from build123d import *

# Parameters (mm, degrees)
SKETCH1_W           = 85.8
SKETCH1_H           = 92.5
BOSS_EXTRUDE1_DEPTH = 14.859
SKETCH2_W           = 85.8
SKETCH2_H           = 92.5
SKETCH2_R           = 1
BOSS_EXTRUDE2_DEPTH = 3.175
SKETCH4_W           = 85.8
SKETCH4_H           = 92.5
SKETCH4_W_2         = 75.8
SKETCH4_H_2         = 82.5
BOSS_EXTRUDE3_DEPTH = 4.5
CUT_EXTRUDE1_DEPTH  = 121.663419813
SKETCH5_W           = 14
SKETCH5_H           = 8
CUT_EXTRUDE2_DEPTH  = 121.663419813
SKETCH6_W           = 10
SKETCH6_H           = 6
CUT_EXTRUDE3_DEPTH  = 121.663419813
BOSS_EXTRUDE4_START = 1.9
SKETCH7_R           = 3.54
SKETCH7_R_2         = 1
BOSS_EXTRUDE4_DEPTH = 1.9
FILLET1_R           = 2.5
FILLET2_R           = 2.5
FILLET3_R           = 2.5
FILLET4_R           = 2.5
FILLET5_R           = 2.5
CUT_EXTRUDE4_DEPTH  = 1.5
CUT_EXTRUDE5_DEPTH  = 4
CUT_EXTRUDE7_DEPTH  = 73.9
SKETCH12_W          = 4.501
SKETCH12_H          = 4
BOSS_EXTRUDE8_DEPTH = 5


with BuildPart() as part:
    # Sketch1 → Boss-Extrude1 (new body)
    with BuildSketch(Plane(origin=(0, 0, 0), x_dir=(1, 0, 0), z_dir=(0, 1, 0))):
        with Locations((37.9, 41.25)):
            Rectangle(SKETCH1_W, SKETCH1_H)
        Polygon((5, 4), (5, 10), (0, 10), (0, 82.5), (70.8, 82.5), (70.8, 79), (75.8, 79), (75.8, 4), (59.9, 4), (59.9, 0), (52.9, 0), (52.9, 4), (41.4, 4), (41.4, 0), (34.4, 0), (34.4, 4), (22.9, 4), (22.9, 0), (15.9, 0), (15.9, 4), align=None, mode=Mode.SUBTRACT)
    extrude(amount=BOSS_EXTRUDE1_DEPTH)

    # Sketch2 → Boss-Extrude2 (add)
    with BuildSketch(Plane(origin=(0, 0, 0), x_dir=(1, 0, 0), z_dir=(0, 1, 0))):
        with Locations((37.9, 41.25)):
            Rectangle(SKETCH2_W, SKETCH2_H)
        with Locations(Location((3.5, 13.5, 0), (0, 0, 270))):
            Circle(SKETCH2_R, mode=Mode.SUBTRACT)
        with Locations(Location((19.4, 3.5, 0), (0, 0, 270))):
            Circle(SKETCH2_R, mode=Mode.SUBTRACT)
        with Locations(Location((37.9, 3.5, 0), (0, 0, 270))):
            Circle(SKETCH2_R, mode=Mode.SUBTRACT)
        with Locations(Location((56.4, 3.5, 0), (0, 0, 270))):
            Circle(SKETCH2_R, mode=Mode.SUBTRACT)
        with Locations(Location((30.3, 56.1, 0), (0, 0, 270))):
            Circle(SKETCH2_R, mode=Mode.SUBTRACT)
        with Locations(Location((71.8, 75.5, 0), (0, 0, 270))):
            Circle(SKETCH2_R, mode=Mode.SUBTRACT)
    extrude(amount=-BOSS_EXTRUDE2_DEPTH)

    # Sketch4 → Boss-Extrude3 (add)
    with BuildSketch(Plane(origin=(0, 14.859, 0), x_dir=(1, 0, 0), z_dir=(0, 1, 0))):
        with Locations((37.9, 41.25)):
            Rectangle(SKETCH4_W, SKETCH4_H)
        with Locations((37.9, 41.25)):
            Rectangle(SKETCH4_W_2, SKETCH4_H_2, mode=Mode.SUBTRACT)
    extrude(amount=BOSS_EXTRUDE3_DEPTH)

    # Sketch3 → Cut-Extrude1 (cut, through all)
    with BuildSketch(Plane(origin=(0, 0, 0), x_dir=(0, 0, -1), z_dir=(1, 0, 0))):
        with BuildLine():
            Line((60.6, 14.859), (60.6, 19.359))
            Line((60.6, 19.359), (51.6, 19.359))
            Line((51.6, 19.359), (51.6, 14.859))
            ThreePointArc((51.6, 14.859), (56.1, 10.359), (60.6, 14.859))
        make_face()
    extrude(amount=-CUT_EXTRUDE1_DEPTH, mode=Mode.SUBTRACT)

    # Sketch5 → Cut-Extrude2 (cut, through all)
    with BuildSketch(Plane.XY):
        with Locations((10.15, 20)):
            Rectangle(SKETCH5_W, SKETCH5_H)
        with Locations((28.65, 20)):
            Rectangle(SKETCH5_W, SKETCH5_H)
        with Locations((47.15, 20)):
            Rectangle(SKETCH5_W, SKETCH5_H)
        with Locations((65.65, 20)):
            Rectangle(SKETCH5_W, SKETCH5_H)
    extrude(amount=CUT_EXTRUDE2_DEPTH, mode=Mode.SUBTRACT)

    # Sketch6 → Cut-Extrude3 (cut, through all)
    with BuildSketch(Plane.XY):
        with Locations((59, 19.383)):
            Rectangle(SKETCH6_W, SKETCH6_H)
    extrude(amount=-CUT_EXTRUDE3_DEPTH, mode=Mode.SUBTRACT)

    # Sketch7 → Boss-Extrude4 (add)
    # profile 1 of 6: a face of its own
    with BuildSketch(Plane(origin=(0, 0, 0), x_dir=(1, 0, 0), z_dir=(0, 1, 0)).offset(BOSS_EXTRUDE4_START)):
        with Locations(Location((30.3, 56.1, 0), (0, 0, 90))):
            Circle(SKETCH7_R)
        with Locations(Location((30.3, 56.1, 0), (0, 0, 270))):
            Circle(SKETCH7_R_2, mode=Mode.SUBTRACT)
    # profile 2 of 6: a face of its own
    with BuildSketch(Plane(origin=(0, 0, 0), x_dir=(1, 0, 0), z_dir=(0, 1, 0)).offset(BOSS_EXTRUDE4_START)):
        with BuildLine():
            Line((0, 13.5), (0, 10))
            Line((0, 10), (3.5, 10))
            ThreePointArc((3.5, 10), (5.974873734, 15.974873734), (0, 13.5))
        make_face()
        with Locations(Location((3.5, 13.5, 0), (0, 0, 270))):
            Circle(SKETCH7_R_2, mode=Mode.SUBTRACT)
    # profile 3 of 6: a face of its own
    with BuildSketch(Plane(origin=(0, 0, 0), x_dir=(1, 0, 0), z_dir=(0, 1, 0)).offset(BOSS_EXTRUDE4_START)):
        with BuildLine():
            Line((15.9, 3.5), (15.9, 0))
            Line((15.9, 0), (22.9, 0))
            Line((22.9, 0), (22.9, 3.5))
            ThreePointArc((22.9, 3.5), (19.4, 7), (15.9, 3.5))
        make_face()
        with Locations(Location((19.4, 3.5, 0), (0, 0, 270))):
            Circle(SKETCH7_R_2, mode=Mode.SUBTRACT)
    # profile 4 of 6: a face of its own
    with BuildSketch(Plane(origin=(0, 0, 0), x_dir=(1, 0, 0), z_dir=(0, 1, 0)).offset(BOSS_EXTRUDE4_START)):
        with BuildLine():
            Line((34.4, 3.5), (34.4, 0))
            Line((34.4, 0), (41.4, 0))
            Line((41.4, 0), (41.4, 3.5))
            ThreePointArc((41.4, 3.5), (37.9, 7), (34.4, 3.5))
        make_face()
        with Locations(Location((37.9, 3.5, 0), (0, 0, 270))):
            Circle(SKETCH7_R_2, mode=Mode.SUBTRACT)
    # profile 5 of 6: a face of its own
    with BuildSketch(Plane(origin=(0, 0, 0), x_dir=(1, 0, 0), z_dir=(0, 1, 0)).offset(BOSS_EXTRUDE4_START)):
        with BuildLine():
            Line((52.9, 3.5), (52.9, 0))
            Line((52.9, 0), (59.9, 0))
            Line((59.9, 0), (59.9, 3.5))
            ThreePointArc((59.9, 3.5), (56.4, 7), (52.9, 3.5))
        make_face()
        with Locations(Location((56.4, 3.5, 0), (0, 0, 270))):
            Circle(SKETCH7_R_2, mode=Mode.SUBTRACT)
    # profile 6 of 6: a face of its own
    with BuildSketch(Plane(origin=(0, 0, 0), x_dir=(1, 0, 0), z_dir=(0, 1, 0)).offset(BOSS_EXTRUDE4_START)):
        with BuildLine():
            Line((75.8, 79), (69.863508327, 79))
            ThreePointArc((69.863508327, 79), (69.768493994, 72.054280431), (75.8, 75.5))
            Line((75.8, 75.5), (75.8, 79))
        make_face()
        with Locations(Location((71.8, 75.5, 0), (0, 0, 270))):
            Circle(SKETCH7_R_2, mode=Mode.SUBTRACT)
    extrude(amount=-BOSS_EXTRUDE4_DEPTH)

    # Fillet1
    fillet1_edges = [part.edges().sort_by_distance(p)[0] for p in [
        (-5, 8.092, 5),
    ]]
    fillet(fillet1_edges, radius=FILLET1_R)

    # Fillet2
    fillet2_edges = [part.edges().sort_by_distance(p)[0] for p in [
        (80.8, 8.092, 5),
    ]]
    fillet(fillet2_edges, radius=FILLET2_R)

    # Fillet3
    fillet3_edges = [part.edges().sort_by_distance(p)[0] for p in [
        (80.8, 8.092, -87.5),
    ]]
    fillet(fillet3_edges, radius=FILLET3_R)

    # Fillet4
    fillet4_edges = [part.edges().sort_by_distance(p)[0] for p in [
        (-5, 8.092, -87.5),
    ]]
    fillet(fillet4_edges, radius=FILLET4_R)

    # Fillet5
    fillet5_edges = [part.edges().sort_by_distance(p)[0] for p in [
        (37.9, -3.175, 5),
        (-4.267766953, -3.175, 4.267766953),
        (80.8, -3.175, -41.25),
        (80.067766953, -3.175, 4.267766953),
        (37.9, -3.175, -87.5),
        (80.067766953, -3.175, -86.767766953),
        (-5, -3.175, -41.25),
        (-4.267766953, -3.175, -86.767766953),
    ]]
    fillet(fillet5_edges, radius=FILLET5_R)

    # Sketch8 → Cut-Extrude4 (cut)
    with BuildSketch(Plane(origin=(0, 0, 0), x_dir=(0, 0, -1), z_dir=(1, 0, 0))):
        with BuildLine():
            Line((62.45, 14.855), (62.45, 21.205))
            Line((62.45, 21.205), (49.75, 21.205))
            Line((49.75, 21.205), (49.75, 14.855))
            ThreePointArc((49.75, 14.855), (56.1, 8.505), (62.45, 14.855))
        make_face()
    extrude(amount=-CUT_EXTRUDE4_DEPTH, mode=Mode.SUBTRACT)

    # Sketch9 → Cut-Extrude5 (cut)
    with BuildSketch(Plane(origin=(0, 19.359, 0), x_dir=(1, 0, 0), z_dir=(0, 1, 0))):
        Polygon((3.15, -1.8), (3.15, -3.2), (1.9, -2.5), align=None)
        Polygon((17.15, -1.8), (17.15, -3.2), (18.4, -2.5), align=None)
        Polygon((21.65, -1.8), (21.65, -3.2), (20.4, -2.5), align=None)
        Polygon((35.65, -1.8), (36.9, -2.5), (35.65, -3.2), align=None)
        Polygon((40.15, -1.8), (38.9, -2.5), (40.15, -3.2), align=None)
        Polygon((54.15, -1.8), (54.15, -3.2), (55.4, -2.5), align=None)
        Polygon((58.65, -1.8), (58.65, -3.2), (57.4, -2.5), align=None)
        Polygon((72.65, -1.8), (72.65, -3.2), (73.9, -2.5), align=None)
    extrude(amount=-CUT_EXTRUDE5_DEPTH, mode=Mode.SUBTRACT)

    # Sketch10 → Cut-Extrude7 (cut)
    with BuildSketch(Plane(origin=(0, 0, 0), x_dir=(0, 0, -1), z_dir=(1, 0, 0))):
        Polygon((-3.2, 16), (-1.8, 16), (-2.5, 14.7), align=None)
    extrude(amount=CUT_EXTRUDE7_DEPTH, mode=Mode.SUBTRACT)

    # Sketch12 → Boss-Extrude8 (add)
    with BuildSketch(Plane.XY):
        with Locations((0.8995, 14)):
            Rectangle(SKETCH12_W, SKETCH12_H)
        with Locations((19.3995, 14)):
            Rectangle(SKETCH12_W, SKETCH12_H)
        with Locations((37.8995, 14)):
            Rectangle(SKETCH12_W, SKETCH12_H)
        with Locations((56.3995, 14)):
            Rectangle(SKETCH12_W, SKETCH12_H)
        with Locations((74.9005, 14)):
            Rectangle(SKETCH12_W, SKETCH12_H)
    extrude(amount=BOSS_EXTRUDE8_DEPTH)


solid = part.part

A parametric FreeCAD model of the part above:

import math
import FreeCAD as App
import Part
import Sketcher
from FreeCAD import Vector


def edges_at(feature, points):
    """Names of the edges that pass closest to the given points."""
    edges = feature.Shape.Edges
    near = lambda p: min(range(len(edges)), key=lambda i: edges[i].distToShape(Part.Vertex(*p))[0])
    return sorted({f"Edge{near(p) + 1}" for p in points})

doc = App.newDocument("Part")
params = doc.addObject("Spreadsheet::Sheet", "Params")
for row, (alias, value) in enumerate([
    ("sketch1_width", "5 mm"),
    ("sketch1_width2", "7 mm"),
    ("sketch1_height", "6 mm"),
    ("sketch1_height2", "75 mm"),
    ("sketch1_height3", "4 mm"),
    ("pad1_length", "14.859 mm"),
    ("sketch2_diameter", "2 mm"),
    ("sketch2_width", "85.8 mm"),
    ("sketch2_height", "92.5 mm"),
    ("pad2_length", "3.175 mm"),
    ("sketch3_width", "85.8 mm"),
    ("sketch3_width2", "75.8 mm"),
    ("sketch3_height", "92.5 mm"),
    ("sketch3_height2", "82.5 mm"),
    ("pad3_length", "4.5 mm"),
    ("sketch4_radius", "4.5 mm"),
    ("sketch4_width", "4.5 mm"),
    ("sketch5_width", "14 mm"),
    ("sketch5_height", "8 mm"),
    ("sketch6_width", "10 mm"),
    ("sketch6_height", "6 mm"),
    ("sketch7_diameter", "2 mm"),
    ("sketch7_radius", "4 mm"),
    ("sketch7_radius2", "3.5 mm"),
    ("sketch7_diameter2", "7.08 mm"),
    ("pad4_length", "1.9 mm"),
    ("fillet_radius", "2.5 mm"),
    ("fillet2_radius", "2.5 mm"),
    ("fillet3_radius", "2.5 mm"),
    ("fillet4_radius", "2.5 mm"),
    ("fillet5_radius", "2.5 mm"),
    ("sketch8_radius", "6.35 mm"),
    ("sketch8_width", "6.35 mm"),
    ("pocket4_length", "1.5 mm"),
    ("sketch9_height", "1.4 mm"),
    ("pocket5_length", "4 mm"),
    ("sketch10_height", "1.4 mm"),
    ("pocket6_length", "73.9 mm"),
    ("sketch11_height", "4 mm"),
    ("pad5_length", "5 mm"),
], start=1):
    params.set(f"A{row}", alias)
    params.set(f"B{row}", "=" + value)
    params.setAlias(f"B{row}", alias)

body = doc.addObject("PartDesign::Body", "Body")

# Sketch on XZ plane
sketch1 = body.newObject("Sketcher::SketchObject", "Sketch")
sketch1.AttachmentSupport = (doc.getObject("XZ_Plane"), [""])
sketch1.MapMode = "FlatFace"
sketch1.addGeometry([
    Part.LineSegment(Vector(-5, -87.5, 0), Vector(-5, 5, 0)),  # 0
    Part.LineSegment(Vector(-5, 5, 0), Vector(80.8, 5, 0)),  # 1
    Part.LineSegment(Vector(80.8, 5, 0), Vector(80.8, -87.5, 0)),  # 2
    Part.LineSegment(Vector(80.8, -87.5, 0), Vector(-5, -87.5, 0)),  # 3
    Part.LineSegment(Vector(15.9, -4, 0), Vector(5, -4, 0)),  # 4
    Part.LineSegment(Vector(5, -4, 0), Vector(5, -10, 0)),  # 5
    Part.LineSegment(Vector(5, -10, 0), Vector(0, -10, 0)),  # 6
    Part.LineSegment(Vector(0, -10, 0), Vector(0, -82.5, 0)),  # 7
    Part.LineSegment(Vector(0, -82.5, 0), Vector(70.8, -82.5, 0)),  # 8
    Part.LineSegment(Vector(70.8, -82.5, 0), Vector(70.8, -79, 0)),  # 9
    Part.LineSegment(Vector(70.8, -79, 0), Vector(75.8, -79, 0)),  # 10
    Part.LineSegment(Vector(75.8, -79, 0), Vector(75.8, -4, 0)),  # 11
    Part.LineSegment(Vector(75.8, -4, 0), Vector(59.9, -4, 0)),  # 12
    Part.LineSegment(Vector(59.9, -4, 0), Vector(59.9, 0, 0)),  # 13
    Part.LineSegment(Vector(59.9, 0, 0), Vector(52.9, 0, 0)),  # 14
    Part.LineSegment(Vector(52.9, 0, 0), Vector(52.9, -4, 0)),  # 15
    Part.LineSegment(Vector(52.9, -4, 0), Vector(41.4, -4, 0)),  # 16
    Part.LineSegment(Vector(41.4, -4, 0), Vector(41.4, 0, 0)),  # 17
    Part.LineSegment(Vector(41.4, 0, 0), Vector(34.4, 0, 0)),  # 18
    Part.LineSegment(Vector(34.4, 0, 0), Vector(34.4, -4, 0)),  # 19
    Part.LineSegment(Vector(34.4, -4, 0), Vector(22.9, -4, 0)),  # 20
    Part.LineSegment(Vector(22.9, -4, 0), Vector(22.9, 0, 0)),  # 21
    Part.LineSegment(Vector(22.9, 0, 0), Vector(15.9, 0, 0)),  # 22
    Part.LineSegment(Vector(15.9, 0, 0), Vector(15.9, -4, 0)),  # 23
], False)
sketch1.addConstraint([
    Sketcher.Constraint("Coincident", 0, 2, 1, 1),
    Sketcher.Constraint("Coincident", 1, 2, 2, 1),
    Sketcher.Constraint("Coincident", 2, 2, 3, 1),
    Sketcher.Constraint("Coincident", 3, 2, 0, 1),
    Sketcher.Constraint("Coincident", 4, 2, 5, 1),
    Sketcher.Constraint("Coincident", 5, 2, 6, 1),
    Sketcher.Constraint("Coincident", 6, 2, 7, 1),
    Sketcher.Constraint("Coincident", 7, 2, 8, 1),
    Sketcher.Constraint("Coincident", 8, 2, 9, 1),
    Sketcher.Constraint("Coincident", 9, 2, 10, 1),
    Sketcher.Constraint("Coincident", 10, 2, 11, 1),
    Sketcher.Constraint("Coincident", 11, 2, 12, 1),
    Sketcher.Constraint("Coincident", 12, 2, 13, 1),
    Sketcher.Constraint("Coincident", 13, 2, 14, 1),
    Sketcher.Constraint("Coincident", 14, 2, 15, 1),
    Sketcher.Constraint("Coincident", 15, 2, 16, 1),
    Sketcher.Constraint("Coincident", 16, 2, 17, 1),
    Sketcher.Constraint("Coincident", 17, 2, 18, 1),
    Sketcher.Constraint("Coincident", 18, 2, 19, 1),
    Sketcher.Constraint("Coincident", 19, 2, 20, 1),
    Sketcher.Constraint("Coincident", 20, 2, 21, 1),
    Sketcher.Constraint("Coincident", 21, 2, 22, 1),
    Sketcher.Constraint("Coincident", 22, 2, 23, 1),
    Sketcher.Constraint("Coincident", 23, 2, 4, 1),
    Sketcher.Constraint("Vertical", 0),
    Sketcher.Constraint("Horizontal", 1),
    Sketcher.Constraint("Vertical", 2),
    Sketcher.Constraint("Horizontal", 3),
    Sketcher.Constraint("Horizontal", 4),
    Sketcher.Constraint("Vertical", 5),
    Sketcher.Constraint("Horizontal", 6),
    Sketcher.Constraint("Vertical", 7),
    Sketcher.Constraint("Horizontal", 8),
    Sketcher.Constraint("Vertical", 9),
    Sketcher.Constraint("Horizontal", 10),
    Sketcher.Constraint("Vertical", 11),
    Sketcher.Constraint("Horizontal", 12),
    Sketcher.Constraint("Vertical", 13),
    Sketcher.Constraint("Horizontal", 14),
    Sketcher.Constraint("Vertical", 15),
    Sketcher.Constraint("Horizontal", 16),
    Sketcher.Constraint("Vertical", 17),
    Sketcher.Constraint("Horizontal", 18),
    Sketcher.Constraint("Vertical", 19),
    Sketcher.Constraint("Horizontal", 20),
    Sketcher.Constraint("Vertical", 21),
    Sketcher.Constraint("Horizontal", 22),
    Sketcher.Constraint("Vertical", 23),
    Sketcher.Constraint("PointOnObject", 6, 2, -2),
    Sketcher.Constraint("PointOnObject", 13, 2, -1),
    Sketcher.Constraint("PointOnObject", 17, 2, -1),
    Sketcher.Constraint("PointOnObject", 21, 2, -1),
    Sketcher.Constraint("Horizontal", 4, 2, 11, 2),
    Sketcher.Constraint("Horizontal", 12, 2, 15, 2),
    Sketcher.Constraint("Horizontal", 16, 2, 19, 2),
    Sketcher.Constraint("Equal", 6, 10),
    Sketcher.Constraint("Equal", 14, 18),
    Sketcher.Constraint("Equal", 16, 20),
    Sketcher.Constraint("Equal", 18, 22),
    Sketcher.Constraint("DistanceX", 6, 2, 6, 1, 5.0),
    Sketcher.Constraint("DistanceX", 14, 2, 14, 1, 7.0),
    Sketcher.Constraint("DistanceY", 5, 2, 5, 1, 6.0),
    Sketcher.Constraint("DistanceY", 11, 1, 11, 2, 75.0),
    Sketcher.Constraint("DistanceY", 13, 1, 13, 2, 4.0),
    Sketcher.Constraint("DistanceX", 1, 1, 1, 2, 85.8),
    Sketcher.Constraint("DistanceX", 4, 2, 4, 1, 10.9),
    Sketcher.Constraint("DistanceX", 8, 1, 8, 2, 70.8),
    Sketcher.Constraint("DistanceX", 12, 2, 12, 1, 15.9),
    Sketcher.Constraint("DistanceY", 0, 1, 0, 2, 92.5),
    Sketcher.Constraint("DistanceY", 7, 2, 7, 1, 72.5),
    Sketcher.Constraint("DistanceX", 0, 2, -1, 1, 5.0),
    Sketcher.Constraint("DistanceY", -1, 1, 0, 2, 5.0),
])
sketch1.setExpression("Constraints[59]", "Params.sketch1_width")
sketch1.setExpression("Constraints[60]", "Params.sketch1_width2")
sketch1.setExpression("Constraints[61]", "Params.sketch1_height")
sketch1.setExpression("Constraints[62]", "Params.sketch1_height2")
sketch1.setExpression("Constraints[63]", "Params.sketch1_height3")
pad1 = body.newObject("PartDesign::Pad", "Pad")
pad1.Profile = sketch1
pad1.setExpression("Length", "Params.pad1_length")
pad1.Reversed = True

# Sketch on XZ plane
sketch2 = body.newObject("Sketcher::SketchObject", "Sketch001")
sketch2.AttachmentSupport = (doc.getObject("XZ_Plane"), [""])
sketch2.MapMode = "FlatFace"
sketch2.addGeometry([
    Part.LineSegment(Vector(-5, -87.5, 0), Vector(-5, 5, 0)),  # 0
    Part.LineSegment(Vector(-5, 5, 0), Vector(80.8, 5, 0)),  # 1
    Part.LineSegment(Vector(80.8, 5, 0), Vector(80.8, -87.5, 0)),  # 2
    Part.LineSegment(Vector(80.8, -87.5, 0), Vector(-5, -87.5, 0)),  # 3
    Part.Circle(Vector(19.4, -3.5, 0), Vector(0, 0, 1), 1),  # 4
    Part.Circle(Vector(3.5, -13.5, 0), Vector(0, 0, 1), 1),  # 5
    Part.Circle(Vector(37.9, -3.5, 0), Vector(0, 0, 1), 1),  # 6
    Part.Circle(Vector(56.4, -3.5, 0), Vector(0, 0, 1), 1),  # 7
    Part.Circle(Vector(30.3, -56.1, 0), Vector(0, 0, 1), 1),  # 8
    Part.Circle(Vector(71.8, -75.5, 0), Vector(0, 0, 1), 1),  # 9
], False)
sketch2.addConstraint([
    Sketcher.Constraint("Coincident", 0, 2, 1, 1),
    Sketcher.Constraint("Coincident", 1, 2, 2, 1),
    Sketcher.Constraint("Coincident", 2, 2, 3, 1),
    Sketcher.Constraint("Coincident", 3, 2, 0, 1),
    Sketcher.Constraint("Vertical", 0),
    Sketcher.Constraint("Horizontal", 1),
    Sketcher.Constraint("Vertical", 2),
    Sketcher.Constraint("Horizontal", 3),
    Sketcher.Constraint("Equal", 4, 5),
    Sketcher.Constraint("Equal", 5, 6),
    Sketcher.Constraint("Equal", 6, 7),
    Sketcher.Constraint("Equal", 7, 8),
    Sketcher.Constraint("Equal", 8, 9),
    Sketcher.Constraint("Horizontal", 4, 3, 6, 3),
    Sketcher.Constraint("Horizontal", 6, 3, 7, 3),
    Sketcher.Constraint("Diameter", 4, 2.0),
    Sketcher.Constraint("DistanceX", 1, 1, 1, 2, 85.8),
    Sketcher.Constraint("DistanceY", 0, 1, 0, 2, 92.5),
    Sketcher.Constraint("DistanceX", 0, 2, -1, 1, 5.0),
    Sketcher.Constraint("DistanceY", -1, 1, 0, 2, 5.0),
    Sketcher.Constraint("DistanceY", 5, 3, 4, 3, 10.0),
    Sketcher.Constraint("DistanceX", 4, 3, 7, 3, 37.0),
    Sketcher.Constraint("DistanceY", 9, 3, 7, 3, 72.0),
    Sketcher.Constraint("DistanceX", 9, 3, 2, 2, 9.0),
    Sketcher.Constraint("DistanceY", 2, 2, 9, 3, 12.0),
    Sketcher.Constraint("DistanceX", -1, 1, 4, 3, 19.4),
    Sketcher.Constraint("DistanceX", -1, 1, 5, 3, 3.5),
    Sketcher.Constraint("DistanceX", -1, 1, 6, 3, 37.9),
    Sketcher.Constraint("DistanceX", -1, 1, 8, 3, 30.3),
    Sketcher.Constraint("DistanceY", 8, 3, -1, 1, 56.1),
])
sketch2.setExpression("Constraints[15]", "Params.sketch2_diameter")
sketch2.setExpression("Constraints[16]", "Params.sketch2_width")
sketch2.setExpression("Constraints[17]", "Params.sketch2_height")
pad2 = body.newObject("PartDesign::Pad", "Pad001")
pad2.Profile = sketch2
pad2.setExpression("Length", "Params.pad2_length")

# Sketch on XZ plane
sketch3 = body.newObject("Sketcher::SketchObject", "Sketch002")
sketch3.AttachmentSupport = (doc.getObject("XZ_Plane"), [""])
sketch3.MapMode = "FlatFace"
sketch3.AttachmentOffset = App.Placement(Vector(0, 0, -14.859), App.Rotation())
sketch3.addGeometry([
    Part.LineSegment(Vector(-5, -88, 0), Vector(-5, 5, 0)),  # 0
    Part.LineSegment(Vector(-5, 5, 0), Vector(81, 5, 0)),  # 1
    Part.LineSegment(Vector(81, 5, 0), Vector(81, -88, 0)),  # 2
    Part.LineSegment(Vector(81, -88, 0), Vector(-5, -88, 0)),  # 3
    Part.LineSegment(Vector(76, 0, 0), Vector(0, 0, 0)),  # 4
    Part.LineSegment(Vector(0, 0, 0), Vector(0, -82, 0)),  # 5
    Part.LineSegment(Vector(0, -82, 0), Vector(76, -82, 0)),  # 6
    Part.LineSegment(Vector(76, -82, 0), Vector(76, 0, 0)),  # 7
], False)
sketch3.addConstraint([
    Sketcher.Constraint("Coincident", 0, 2, 1, 1),
    Sketcher.Constraint("Coincident", 1, 2, 2, 1),
    Sketcher.Constraint("Coincident", 2, 2, 3, 1),
    Sketcher.Constraint("Coincident", 3, 2, 0, 1),
    Sketcher.Constraint("Coincident", 4, 2, 5, 1),
    Sketcher.Constraint("Coincident", 5, 2, 6, 1),
    Sketcher.Constraint("Coincident", 6, 2, 7, 1),
    Sketcher.Constraint("Coincident", 7, 2, 4, 1),
    Sketcher.Constraint("Vertical", 0),
    Sketcher.Constraint("Horizontal", 1),
    Sketcher.Constraint("Vertical", 2),
    Sketcher.Constraint("Horizontal", 3),
    Sketcher.Constraint("Horizontal", 4),
    Sketcher.Constraint("Vertical", 5),
    Sketcher.Constraint("Horizontal", 6),
    Sketcher.Constraint("Vertical", 7),
    Sketcher.Constraint("Coincident", 4, 2, -1, 1),
    Sketcher.Constraint("DistanceX", 1, 1, 1, 2, 85.8),
    Sketcher.Constraint("DistanceX", 4, 2, 4, 1, 75.8),
    Sketcher.Constraint("DistanceY", 0, 1, 0, 2, 92.5),
    Sketcher.Constraint("DistanceY", 5, 2, 5, 1, 82.5),
    Sketcher.Constraint("DistanceX", 0, 2, -1, 1, 5.0),
    Sketcher.Constraint("DistanceY", -1, 1, 0, 2, 5.0),
])
sketch3.setExpression("Constraints[17]", "Params.sketch3_width")
sketch3.setExpression("Constraints[18]", "Params.sketch3_width2")
sketch3.setExpression("Constraints[19]", "Params.sketch3_height")
sketch3.setExpression("Constraints[20]", "Params.sketch3_height2")
pad3 = body.newObject("PartDesign::Pad", "Pad002")
pad3.Profile = sketch3
pad3.setExpression("Length", "Params.pad3_length")
pad3.Reversed = True

# Sketch on YZ plane
sketch4 = body.newObject("Sketcher::SketchObject", "Sketch003")
sketch4.AttachmentSupport = (doc.getObject("YZ_Plane"), [""])
sketch4.MapMode = "FlatFace"
sketch4.addGeometry([
    Part.LineSegment(Vector(14.9, -60.6, 0), Vector(19.4, -60.6, 0)),
    Part.LineSegment(Vector(19.4, -60.6, 0), Vector(19.4, -51.6, 0)),
    Part.LineSegment(Vector(19.4, -51.6, 0), Vector(14.9, -51.6, 0)),
    Part.ArcOfCircle(Part.Circle(Vector(14.9, -56.1, 0), Vector(0, 0, 1), 4.5), math.radians(90), math.radians(270)),
], False)
sketch4.addConstraint([
    Sketcher.Constraint("Coincident", 0, 2, 1, 1),
    Sketcher.Constraint("Coincident", 1, 2, 2, 1),
    Sketcher.Constraint("Tangent", 2, 2, 3, 1),
    Sketcher.Constraint("Tangent", 3, 2, 0, 1),
    Sketcher.Constraint("Horizontal", 0),
    Sketcher.Constraint("Vertical", 1),
    Sketcher.Constraint("Horizontal", 2),
    Sketcher.Constraint("Radius", 3, 4.5),
    Sketcher.Constraint("DistanceX", 0, 1, 0, 2, 4.5),
    Sketcher.Constraint("DistanceY", 3, 3, -1, 1, 56.1),
    Sketcher.Constraint("DistanceX", -1, 1, 3, 3, 14.859),
])
sketch4.setExpression("Constraints[7]", "Params.sketch4_radius")
sketch4.setExpression("Constraints[8]", "Params.sketch4_width")
pocket1 = body.newObject("PartDesign::Pocket", "Pocket")
pocket1.Profile = sketch4
pocket1.Type = "ThroughAll"

# Sketch on XY plane
sketch5 = body.newObject("Sketcher::SketchObject", "Sketch004")
sketch5.AttachmentSupport = (doc.getObject("XY_Plane"), [""])
sketch5.MapMode = "FlatFace"
sketch5.addGeometry([
    Part.LineSegment(Vector(3, 24, 0), Vector(3, 16, 0)),  # 0
    Part.LineSegment(Vector(3, 16, 0), Vector(17, 16, 0)),  # 1
    Part.LineSegment(Vector(17, 16, 0), Vector(17, 24, 0)),  # 2
    Part.LineSegment(Vector(17, 24, 0), Vector(3, 24, 0)),  # 3
    Part.LineSegment(Vector(22, 24, 0), Vector(22, 16, 0)),  # 4
    Part.LineSegment(Vector(22, 16, 0), Vector(36, 16, 0)),  # 5
    Part.LineSegment(Vector(36, 16, 0), Vector(36, 24, 0)),  # 6
    Part.LineSegment(Vector(36, 24, 0), Vector(22, 24, 0)),  # 7
    Part.LineSegment(Vector(40, 24, 0), Vector(40, 16, 0)),  # 8
    Part.LineSegment(Vector(40, 16, 0), Vector(54, 16, 0)),  # 9
    Part.LineSegment(Vector(54, 16, 0), Vector(54, 24, 0)),  # 10
    Part.LineSegment(Vector(54, 24, 0), Vector(40, 24, 0)),  # 11
    Part.LineSegment(Vector(59, 24, 0), Vector(59, 16, 0)),  # 12
    Part.LineSegment(Vector(59, 16, 0), Vector(73, 16, 0)),  # 13
    Part.LineSegment(Vector(73, 16, 0), Vector(73, 24, 0)),  # 14
    Part.LineSegment(Vector(73, 24, 0), Vector(59, 24, 0)),  # 15
], False)
sketch5.addConstraint([
    Sketcher.Constraint("Coincident", 0, 2, 1, 1),
    Sketcher.Constraint("Coincident", 1, 2, 2, 1),
    Sketcher.Constraint("Coincident", 2, 2, 3, 1),
    Sketcher.Constraint("Coincident", 3, 2, 0, 1),
    Sketcher.Constraint("Coincident", 4, 2, 5, 1),
    Sketcher.Constraint("Coincident", 5, 2, 6, 1),
    Sketcher.Constraint("Coincident", 6, 2, 7, 1),
    Sketcher.Constraint("Coincident", 7, 2, 4, 1),
    Sketcher.Constraint("Coincident", 8, 2, 9, 1),
    Sketcher.Constraint("Coincident", 9, 2, 10, 1),
    Sketcher.Constraint("Coincident", 10, 2, 11, 1),
    Sketcher.Constraint("Coincident", 11, 2, 8, 1),
    Sketcher.Constraint("Coincident", 12, 2, 13, 1),
    Sketcher.Constraint("Coincident", 13, 2, 14, 1),
    Sketcher.Constraint("Coincident", 14, 2, 15, 1),
    Sketcher.Constraint("Coincident", 15, 2, 12, 1),
    Sketcher.Constraint("Vertical", 0),
    Sketcher.Constraint("Horizontal", 1),
    Sketcher.Constraint("Vertical", 2),
    Sketcher.Constraint("Horizontal", 3),
    Sketcher.Constraint("Vertical", 4),
    Sketcher.Constraint("Horizontal", 5),
    Sketcher.Constraint("Vertical", 6),
    Sketcher.Constraint("Horizontal", 7),
    Sketcher.Constraint("Vertical", 8),
    Sketcher.Constraint("Horizontal", 9),
    Sketcher.Constraint("Vertical", 10),
    Sketcher.Constraint("Horizontal", 11),
    Sketcher.Constraint("Vertical", 12),
    Sketcher.Constraint("Horizontal", 13),
    Sketcher.Constraint("Vertical", 14),
    Sketcher.Constraint("Horizontal", 15),
    Sketcher.Constraint("Horizontal", 1, 2, 4, 2),
    Sketcher.Constraint("Horizontal", 3, 2, 6, 2),
    Sketcher.Constraint("Horizontal", 5, 2, 8, 2),
    Sketcher.Constraint("Horizontal", 7, 2, 10, 2),
    Sketcher.Constraint("Horizontal", 9, 2, 12, 2),
    Sketcher.Constraint("Horizontal", 11, 2, 14, 2),
    Sketcher.Constraint("Equal", 3, 5),
    Sketcher.Constraint("Equal", 7, 9),
    Sketcher.Constraint("Equal", 11, 13),
    Sketcher.Constraint("DistanceX", 1, 1, 1, 2, 14.0),
    Sketcher.Constraint("DistanceY", 0, 2, 0, 1, 8.0),
    Sketcher.Constraint("DistanceY", -1, 1, 0, 2, 16.0),
    Sketcher.Constraint("DistanceX", 1, 2, 8, 2, 23.0),
    Sketcher.Constraint("DistanceX", 5, 2, 12, 2, 23.0),
    Sketcher.Constraint("DistanceX", 1, 2, 4, 2, 4.5),
    Sketcher.Constraint("DistanceX", -1, 1, 0, 2, 3.15),
])
sketch5.setExpression("Constraints[41]", "Params.sketch5_width")
sketch5.setExpression("Constraints[42]", "Params.sketch5_height")
pocket2 = body.newObject("PartDesign::Pocket", "Pocket001")
pocket2.Profile = sketch5
pocket2.Type = "ThroughAll"
pocket2.Reversed = True

# Sketch on XY plane
sketch6 = body.newObject("Sketcher::SketchObject", "Sketch005")
sketch6.AttachmentSupport = (doc.getObject("XY_Plane"), [""])
sketch6.MapMode = "FlatFace"
sketch6.addGeometry([
    Part.LineSegment(Vector(54, 22, 0), Vector(54, 16, 0)),
    Part.LineSegment(Vector(54, 16, 0), Vector(64, 16, 0)),
    Part.LineSegment(Vector(64, 16, 0), Vector(64, 22, 0)),
    Part.LineSegment(Vector(64, 22, 0), Vector(54, 22, 0)),
], False)
sketch6.addConstraint([
    Sketcher.Constraint("Coincident", 0, 2, 1, 1),
    Sketcher.Constraint("Coincident", 1, 2, 2, 1),
    Sketcher.Constraint("Coincident", 2, 2, 3, 1),
    Sketcher.Constraint("Coincident", 3, 2, 0, 1),
    Sketcher.Constraint("Vertical", 0),
    Sketcher.Constraint("Horizontal", 1),
    Sketcher.Constraint("Vertical", 2),
    Sketcher.Constraint("Horizontal", 3),
    Sketcher.Constraint("DistanceX", 1, 1, 1, 2, 10.0),
    Sketcher.Constraint("DistanceY", 0, 2, 0, 1, 6.0),
    Sketcher.Constraint("DistanceX", -1, 1, 0, 2, 54.0),
    Sketcher.Constraint("DistanceY", -1, 1, 0, 2, 16.383),
])
sketch6.setExpression("Constraints[8]", "Params.sketch6_width")
sketch6.setExpression("Constraints[9]", "Params.sketch6_height")
pocket3 = body.newObject("PartDesign::Pocket", "Pocket002")
pocket3.Profile = sketch6
pocket3.Type = "ThroughAll"

# Sketch on XZ plane
sketch7 = body.newObject("Sketcher::SketchObject", "Sketch006")
sketch7.AttachmentSupport = (doc.getObject("XZ_Plane"), [""])
sketch7.MapMode = "FlatFace"
sketch7.AttachmentOffset = App.Placement(Vector(0, 0, -1.9), App.Rotation())
sketch7.addGeometry([
    Part.Circle(Vector(30.3, -56.1, 0), Vector(0, 0, 1), 3.5),  # 0
    Part.Circle(Vector(30.3, -56.1, 0), Vector(0, 0, 1), 1),  # 1
    Part.LineSegment(Vector(0, -13.5, 0), Vector(0, -10, 0)),  # 2
    Part.LineSegment(Vector(0, -10, 0), Vector(3.5, -10, 0)),  # 3
    Part.ArcOfCircle(Part.Circle(Vector(3.5, -13.5, 0), Vector(0, 0, 1), 3.5), math.radians(180), math.radians(450)),  # 4
    Part.Circle(Vector(3.5, -13.5, 0), Vector(0, 0, 1), 1),  # 5
    Part.LineSegment(Vector(15.9, -3.5, 0), Vector(15.9, 0, 0)),  # 6
    Part.LineSegment(Vector(15.9, 0, 0), Vector(22.9, 0, 0)),  # 7
    Part.LineSegment(Vector(22.9, 0, 0), Vector(22.9, -3.5, 0)),  # 8
    Part.ArcOfCircle(Part.Circle(Vector(19.4, -3.5, 0), Vector(0, 0, 1), 3.5), math.radians(180), math.radians(360)),  # 9
    Part.Circle(Vector(19.4, -3.5, 0), Vector(0, 0, 1), 1),  # 10
    Part.LineSegment(Vector(34.4, -3.5, 0), Vector(34.4, 0, 0)),  # 11
    Part.LineSegment(Vector(34.4, 0, 0), Vector(41.4, 0, 0)),  # 12
    Part.LineSegment(Vector(41.4, 0, 0), Vector(41.4, -3.5, 0)),  # 13
    Part.ArcOfCircle(Part.Circle(Vector(37.9, -3.5, 0), Vector(0, 0, 1), 3.5), math.radians(180), math.radians(360)),  # 14
    Part.Circle(Vector(37.9, -3.5, 0), Vector(0, 0, 1), 1),  # 15
    Part.LineSegment(Vector(52.9, -3.5, 0), Vector(52.9, 0, 0)),  # 16
    Part.LineSegment(Vector(52.9, 0, 0), Vector(59.9, 0, 0)),  # 17
    Part.LineSegment(Vector(59.9, 0, 0), Vector(59.9, -3.5, 0)),  # 18
    Part.ArcOfCircle(Part.Circle(Vector(56.4, -3.5, 0), Vector(0, 0, 1), 3.5), math.radians(180), math.radians(360)),  # 19
    Part.Circle(Vector(56.4, -3.5, 0), Vector(0, 0, 1), 1),  # 20
    Part.LineSegment(Vector(75.8, -79, 0), Vector(69.9, -79, 0)),  # 21
    Part.ArcOfCircle(Part.Circle(Vector(71.8, -75.5, 0), Vector(0, 0, 1), 4), math.radians(0), math.radians(241)),  # 22
    Part.LineSegment(Vector(75.8, -75.5, 0), Vector(75.8, -79, 0)),  # 23
    Part.Circle(Vector(71.8, -75.5, 0), Vector(0, 0, 1), 1),  # 24
], False)
sketch7.addConstraint([
    Sketcher.Constraint("Coincident", 2, 2, 3, 1),
    Sketcher.Constraint("Tangent", 3, 2, 4, 2),
    Sketcher.Constraint("Tangent", 4, 1, 2, 1),
    Sketcher.Constraint("Coincident", 6, 2, 7, 1),
    Sketcher.Constraint("Coincident", 7, 2, 8, 1),
    Sketcher.Constraint("Tangent", 8, 2, 9, 2),
    Sketcher.Constraint("Tangent", 9, 1, 6, 1),
    Sketcher.Constraint("Coincident", 11, 2, 12, 1),
    Sketcher.Constraint("Coincident", 12, 2, 13, 1),
    Sketcher.Constraint("Tangent", 13, 2, 14, 2),
    Sketcher.Constraint("Tangent", 14, 1, 11, 1),
    Sketcher.Constraint("Coincident", 16, 2, 17, 1),
    Sketcher.Constraint("Coincident", 17, 2, 18, 1),
    Sketcher.Constraint("Tangent", 18, 2, 19, 2),
    Sketcher.Constraint("Tangent", 19, 1, 16, 1),
    Sketcher.Constraint("Coincident", 21, 2, 22, 2),
    Sketcher.Constraint("Tangent", 22, 1, 23, 1),
    Sketcher.Constraint("Coincident", 23, 2, 21, 1),
    Sketcher.Constraint("Vertical", 2),
    Sketcher.Constraint("Horizontal", 3),
    Sketcher.Constraint("Vertical", 6),
    Sketcher.Constraint("Horizontal", 7),
    Sketcher.Constraint("Vertical", 8),
    Sketcher.Constraint("Vertical", 11),
    Sketcher.Constraint("Horizontal", 12),
    Sketcher.Constraint("Vertical", 13),
    Sketcher.Constraint("Vertical", 16),
    Sketcher.Constraint("Horizontal", 17),
    Sketcher.Constraint("Vertical", 18),
    Sketcher.Constraint("Horizontal", 21),
    Sketcher.Constraint("Vertical", 23),
    Sketcher.Constraint("Coincident", 1, 3, 0, 3),
    Sketcher.Constraint("Coincident", 5, 3, 4, 3),
    Sketcher.Constraint("Coincident", 10, 3, 9, 3),
    Sketcher.Constraint("Coincident", 15, 3, 14, 3),
    Sketcher.Constraint("Coincident", 20, 3, 19, 3),
    Sketcher.Constraint("Coincident", 24, 3, 22, 3),
    Sketcher.Constraint("Equal", 1, 5),
    Sketcher.Constraint("Equal", 4, 9),
    Sketcher.Constraint("Equal", 5, 10),
    Sketcher.Constraint("Equal", 9, 14),
    Sketcher.Constraint("Equal", 10, 15),
    Sketcher.Constraint("Equal", 14, 19),
    Sketcher.Constraint("Equal", 15, 20),
    Sketcher.Constraint("Equal", 20, 24),
    Sketcher.Constraint("PointOnObject", 2, 2, -2),
    Sketcher.Constraint("PointOnObject", 6, 2, -1),
    Sketcher.Constraint("PointOnObject", 11, 2, -1),
    Sketcher.Constraint("PointOnObject", 16, 2, -1),
    Sketcher.Constraint("Horizontal", 10, 3, 14, 3),
    Sketcher.Constraint("Horizontal", 15, 3, 19, 3),
    Sketcher.Constraint("Equal", 2, 6),
    Sketcher.Constraint("Equal", 18, 23),
    Sketcher.Constraint("Diameter", 1, 2.0),
    Sketcher.Constraint("Radius", 22, 4.0),
    Sketcher.Constraint("Radius", 4, 3.5),
    Sketcher.Constraint("Diameter", 0, 7.08),
    Sketcher.Constraint("DistanceY", 2, 2, -1, 1, 10.0),
    Sketcher.Constraint("DistanceY", 21, 2, -1, 1, 79.0),
    Sketcher.Constraint("DistanceX", 9, 3, 19, 3, 37.0),
    Sketcher.Constraint("DistanceX", 7, 2, 14, 3, 15.0),
    Sketcher.Constraint("DistanceX", -1, 1, 0, 3, 30.3),
    Sketcher.Constraint("DistanceY", 0, 3, -1, 1, 56.1),
    Sketcher.Constraint("DistanceX", -1, 1, 9, 3, 19.4),
    Sketcher.Constraint("DistanceX", -1, 1, 22, 3, 71.8),
])
sketch7.setExpression("Constraints[53]", "Params.sketch7_diameter")
sketch7.setExpression("Constraints[54]", "Params.sketch7_radius")
sketch7.setExpression("Constraints[55]", "Params.sketch7_radius2")
sketch7.setExpression("Constraints[56]", "Params.sketch7_diameter2")
pad4 = body.newObject("PartDesign::Pad", "Pad003")
pad4.Profile = sketch7
pad4.setExpression("Length", "Params.pad4_length")
doc.recompute()

fillet = body.newObject("PartDesign::Fillet", "Fillet")
fillet.Base = (pad4, edges_at(pad4, [(-5, 8.092, 5)]))
fillet.setExpression("Radius", "Params.fillet_radius")
doc.recompute()

fillet2 = body.newObject("PartDesign::Fillet", "Fillet001")
fillet2.Base = (fillet, edges_at(fillet, [(80.8, 8.092, 5)]))
fillet2.setExpression("Radius", "Params.fillet2_radius")
doc.recompute()

fillet3 = body.newObject("PartDesign::Fillet", "Fillet002")
fillet3.Base = (fillet2, edges_at(fillet2, [(80.8, 8.092, -87.5)]))
fillet3.setExpression("Radius", "Params.fillet3_radius")
doc.recompute()

fillet4 = body.newObject("PartDesign::Fillet", "Fillet003")
fillet4.Base = (fillet3, edges_at(fillet3, [(-5, 8.092, -87.5)]))
fillet4.setExpression("Radius", "Params.fillet4_radius")
doc.recompute()

fillet5 = body.newObject("PartDesign::Fillet", "Fillet004")
fillet5.Base = (fillet4, edges_at(fillet4, [
    (37.9, -3.175, 5),
    (-4.268, -3.175, 4.268),
    (80.8, -3.175, -41.25),
    (80.068, -3.175, 4.268),
    (37.9, -3.175, -87.5),
    (80.068, -3.175, -86.768),
    (-5, -3.175, -41.25),
    (-4.268, -3.175, -86.768),
]))
fillet5.setExpression("Radius", "Params.fillet5_radius")

# Sketch on YZ plane
sketch8 = body.newObject("Sketcher::SketchObject", "Sketch007")
sketch8.AttachmentSupport = (doc.getObject("YZ_Plane"), [""])
sketch8.MapMode = "FlatFace"
sketch8.addGeometry([
    Part.LineSegment(Vector(15, -62, 0), Vector(21, -62, 0)),
    Part.LineSegment(Vector(21, -62, 0), Vector(21, -50, 0)),
    Part.LineSegment(Vector(21, -50, 0), Vector(15, -50, 0)),
    Part.ArcOfCircle(Part.Circle(Vector(15, -56, 0), Vector(0, 0, 1), 6), math.radians(90), math.radians(270)),
], False)
sketch8.addConstraint([
    Sketcher.Constraint("Coincident", 0, 2, 1, 1),
    Sketcher.Constraint("Coincident", 1, 2, 2, 1),
    Sketcher.Constraint("Tangent", 2, 2, 3, 1),
    Sketcher.Constraint("Tangent", 3, 2, 0, 1),
    Sketcher.Constraint("Horizontal", 0),
    Sketcher.Constraint("Vertical", 1),
    Sketcher.Constraint("Horizontal", 2),
    Sketcher.Constraint("Radius", 3, 6.35),
    Sketcher.Constraint("DistanceX", 0, 1, 0, 2, 6.35),
    Sketcher.Constraint("DistanceY", 3, 3, -1, 1, 56.1),
    Sketcher.Constraint("DistanceX", -1, 1, 3, 3, 14.855),
])
sketch8.setExpression("Constraints[7]", "Params.sketch8_radius")
sketch8.setExpression("Constraints[8]", "Params.sketch8_width")
pocket4 = body.newObject("PartDesign::Pocket", "Pocket003")
pocket4.Profile = sketch8
pocket4.setExpression("Length", "Params.pocket4_length")

# Sketch on XZ plane
sketch9 = body.newObject("Sketcher::SketchObject", "Sketch008")
sketch9.AttachmentSupport = (doc.getObject("XZ_Plane"), [""])
sketch9.MapMode = "FlatFace"
sketch9.AttachmentOffset = App.Placement(Vector(0, 0, -19.359), App.Rotation())
sketch9.addGeometry([
    Part.LineSegment(Vector(3.1, 3.2, 0), Vector(3.1, 1.8, 0)),  # 0
    Part.LineSegment(Vector(3.1, 1.8, 0), Vector(1.9, 2.5, 0)),  # 1
    Part.LineSegment(Vector(1.9, 2.5, 0), Vector(3.1, 3.2, 0)),  # 2
    Part.LineSegment(Vector(17.1, 1.8, 0), Vector(17.1, 3.2, 0)),  # 3
    Part.LineSegment(Vector(17.1, 3.2, 0), Vector(18.4, 2.5, 0)),  # 4
    Part.LineSegment(Vector(18.4, 2.5, 0), Vector(17.1, 1.8, 0)),  # 5
    Part.LineSegment(Vector(21.6, 3.2, 0), Vector(21.6, 1.8, 0)),  # 6
    Part.LineSegment(Vector(21.6, 1.8, 0), Vector(20.4, 2.5, 0)),  # 7
    Part.LineSegment(Vector(20.4, 2.5, 0), Vector(21.6, 3.2, 0)),  # 8
    Part.LineSegment(Vector(36.9, 2.5, 0), Vector(35.6, 1.8, 0)),  # 9
    Part.LineSegment(Vector(35.6, 1.8, 0), Vector(35.6, 3.2, 0)),  # 10
    Part.LineSegment(Vector(35.6, 3.2, 0), Vector(36.9, 2.5, 0)),  # 11
    Part.LineSegment(Vector(40.1, 1.8, 0), Vector(38.9, 2.5, 0)),  # 12
    Part.LineSegment(Vector(38.9, 2.5, 0), Vector(40.1, 3.2, 0)),  # 13
    Part.LineSegment(Vector(40.1, 3.2, 0), Vector(40.1, 1.8, 0)),  # 14
    Part.LineSegment(Vector(54.1, 1.8, 0), Vector(54.1, 3.2, 0)),  # 15
    Part.LineSegment(Vector(54.1, 3.2, 0), Vector(55.4, 2.5, 0)),  # 16
    Part.LineSegment(Vector(55.4, 2.5, 0), Vector(54.1, 1.8, 0)),  # 17
    Part.LineSegment(Vector(58.6, 3.2, 0), Vector(58.6, 1.8, 0)),  # 18
    Part.LineSegment(Vector(58.6, 1.8, 0), Vector(57.4, 2.5, 0)),  # 19
    Part.LineSegment(Vector(57.4, 2.5, 0), Vector(58.6, 3.2, 0)),  # 20
    Part.LineSegment(Vector(72.7, 1.8, 0), Vector(72.7, 3.2, 0)),  # 21
    Part.LineSegment(Vector(72.7, 3.2, 0), Vector(73.9, 2.5, 0)),  # 22
    Part.LineSegment(Vector(73.9, 2.5, 0), Vector(72.7, 1.8, 0)),  # 23
], False)
sketch9.addConstraint([
    Sketcher.Constraint("Coincident", 0, 2, 1, 1),
    Sketcher.Constraint("Coincident", 1, 2, 2, 1),
    Sketcher.Constraint("Coincident", 2, 2, 0, 1),
    Sketcher.Constraint("Coincident", 3, 2, 4, 1),
    Sketcher.Constraint("Coincident", 4, 2, 5, 1),
    Sketcher.Constraint("Coincident", 5, 2, 3, 1),
    Sketcher.Constraint("Coincident", 6, 2, 7, 1),
    Sketcher.Constraint("Coincident", 7, 2, 8, 1),
    Sketcher.Constraint("Coincident", 8, 2, 6, 1),
    Sketcher.Constraint("Coincident", 9, 2, 10, 1),
    Sketcher.Constraint("Coincident", 10, 2, 11, 1),
    Sketcher.Constraint("Coincident", 11, 2, 9, 1),
    Sketcher.Constraint("Coincident", 12, 2, 13, 1),
    Sketcher.Constraint("Coincident", 13, 2, 14, 1),
    Sketcher.Constraint("Coincident", 14, 2, 12, 1),
    Sketcher.Constraint("Coincident", 15, 2, 16, 1),
    Sketcher.Constraint("Coincident", 16, 2, 17, 1),
    Sketcher.Constraint("Coincident", 17, 2, 15, 1),
    Sketcher.Constraint("Coincident", 18, 2, 19, 1),
    Sketcher.Constraint("Coincident", 19, 2, 20, 1),
    Sketcher.Constraint("Coincident", 20, 2, 18, 1),
    Sketcher.Constraint("Coincident", 21, 2, 22, 1),
    Sketcher.Constraint("Coincident", 22, 2, 23, 1),
    Sketcher.Constraint("Coincident", 23, 2, 21, 1),
    Sketcher.Constraint("Vertical", 0),
    Sketcher.Constraint("Vertical", 3),
    Sketcher.Constraint("Vertical", 6),
    Sketcher.Constraint("Vertical", 10),
    Sketcher.Constraint("Vertical", 14),
    Sketcher.Constraint("Vertical", 15),
    Sketcher.Constraint("Vertical", 18),
    Sketcher.Constraint("Vertical", 21),
    Sketcher.Constraint("Parallel", 1, 4),
    Sketcher.Constraint("Parallel", 2, 5),
    Sketcher.Constraint("Parallel", 4, 7),
    Sketcher.Constraint("Parallel", 5, 8),
    Sketcher.Constraint("Parallel", 8, 9),
    Sketcher.Constraint("Parallel", 7, 11),
    Sketcher.Constraint("Parallel", 11, 12),
    Sketcher.Constraint("Parallel", 9, 13),
    Sketcher.Constraint("Parallel", 12, 16),
    Sketcher.Constraint("Parallel", 13, 17),
    Sketcher.Constraint("Parallel", 16, 19),
    Sketcher.Constraint("Parallel", 17, 20),
    Sketcher.Constraint("Parallel", 19, 22),
    Sketcher.Constraint("Parallel", 20, 23),
    Sketcher.Constraint("Horizontal", 2, 2, 3, 2),
    Sketcher.Constraint("Horizontal", 1, 2, 4, 2),
    Sketcher.Constraint("Horizontal", 0, 2, 5, 2),
    Sketcher.Constraint("Horizontal", 5, 2, 6, 2),
    Sketcher.Constraint("Horizontal", 4, 2, 7, 2),
    Sketcher.Constraint("Horizontal", 6, 2, 9, 2),
    Sketcher.Constraint("Horizontal", 8, 2, 10, 2),
    Sketcher.Constraint("Horizontal", 11, 2, 12, 2),
    Sketcher.Constraint("Horizontal", 10, 2, 13, 2),
    Sketcher.Constraint("Horizontal", 13, 2, 15, 2),
    Sketcher.Constraint("Horizontal", 12, 2, 16, 2),
    Sketcher.Constraint("Horizontal", 17, 2, 18, 2),
    Sketcher.Constraint("Horizontal", 16, 2, 19, 2),
    Sketcher.Constraint("Horizontal", 20, 2, 21, 2),
    Sketcher.Constraint("Horizontal", 19, 2, 22, 2),
    Sketcher.Constraint("DistanceY", 0, 2, 0, 1, 1.4),
    Sketcher.Constraint("DistanceX", 2, 2, 3, 2, 14.0),
    Sketcher.Constraint("DistanceX", 4, 2, 7, 2, 2.0),
    Sketcher.Constraint("DistanceX", 6, 2, 9, 2, 14.0),
    Sketcher.Constraint("DistanceX", 11, 2, 12, 2, 2.0),
    Sketcher.Constraint("DistanceX", 13, 2, 15, 2, 14.0),
    Sketcher.Constraint("DistanceX", 16, 2, 19, 2, 2.0),
    Sketcher.Constraint("DistanceX", 20, 2, 21, 2, 14.0),
    Sketcher.Constraint("DistanceY", -1, 1, 0, 2, 1.8),
    Sketcher.Constraint("DistanceX", -1, 1, 1, 2, 1.9),
    Sketcher.Constraint("DistanceX", -1, 1, 4, 2, 18.4),
])
sketch9.setExpression("Constraints[61]", "Params.sketch9_height")
pocket5 = body.newObject("PartDesign::Pocket", "Pocket004")
pocket5.Profile = sketch9
pocket5.setExpression("Length", "Params.pocket5_length")
pocket5.Reversed = True

# Sketch on YZ plane
sketch10 = body.newObject("Sketcher::SketchObject", "Sketch009")
sketch10.AttachmentSupport = (doc.getObject("YZ_Plane"), [""])
sketch10.MapMode = "FlatFace"
sketch10.addGeometry([
    Part.LineSegment(Vector(16, 1.8, 0), Vector(16, 3.2, 0)),
    Part.LineSegment(Vector(16, 3.2, 0), Vector(14.7, 2.5, 0)),
    Part.LineSegment(Vector(14.7, 2.5, 0), Vector(16, 1.8, 0)),
], False)
sketch10.addConstraint([
    Sketcher.Constraint("Coincident", 0, 2, 1, 1),
    Sketcher.Constraint("Coincident", 1, 2, 2, 1),
    Sketcher.Constraint("Coincident", 2, 2, 0, 1),
    Sketcher.Constraint("Vertical", 0),
    Sketcher.Constraint("Equal", 1, 2),
    Sketcher.Constraint("DistanceY", 0, 1, 0, 2, 1.4),
    Sketcher.Constraint("DistanceX", -1, 1, 0, 2, 16.0),
    Sketcher.Constraint("DistanceY", -1, 1, 0, 2, 3.2),
    Sketcher.Constraint("DistanceX", -1, 1, 1, 2, 14.7),
])
sketch10.setExpression("Constraints[5]", "Params.sketch10_height")
pocket6 = body.newObject("PartDesign::Pocket", "Pocket005")
pocket6.Profile = sketch10
pocket6.setExpression("Length", "Params.pocket6_length")
pocket6.Reversed = True

# Sketch on XY plane
sketch11 = body.newObject("Sketcher::SketchObject", "Sketch010")
sketch11.AttachmentSupport = (doc.getObject("XY_Plane"), [""])
sketch11.MapMode = "FlatFace"
sketch11.addGeometry([
    Part.LineSegment(Vector(-1.4, 16, 0), Vector(-1.4, 12, 0)),  # 0
    Part.LineSegment(Vector(-1.4, 12, 0), Vector(3.1, 12, 0)),  # 1
    Part.LineSegment(Vector(3.1, 12, 0), Vector(3.1, 16, 0)),  # 2
    Part.LineSegment(Vector(3.1, 16, 0), Vector(-1.4, 16, 0)),  # 3
    Part.LineSegment(Vector(17.1, 16, 0), Vector(17.1, 12, 0)),  # 4
    Part.LineSegment(Vector(17.1, 12, 0), Vector(21.6, 12, 0)),  # 5
    Part.LineSegment(Vector(21.6, 12, 0), Vector(21.6, 16, 0)),  # 6
    Part.LineSegment(Vector(21.6, 16, 0), Vector(17.1, 16, 0)),  # 7
    Part.LineSegment(Vector(35.6, 16, 0), Vector(35.6, 12, 0)),  # 8
    Part.LineSegment(Vector(35.6, 12, 0), Vector(40.1, 12, 0)),  # 9
    Part.LineSegment(Vector(40.1, 12, 0), Vector(40.1, 16, 0)),  # 10
    Part.LineSegment(Vector(40.1, 16, 0), Vector(35.6, 16, 0)),  # 11
    Part.LineSegment(Vector(54.1, 16, 0), Vector(54.1, 12, 0)),  # 12
    Part.LineSegment(Vector(54.1, 12, 0), Vector(58.6, 12, 0)),  # 13
    Part.LineSegment(Vector(58.6, 12, 0), Vector(58.6, 16, 0)),  # 14
    Part.LineSegment(Vector(58.6, 16, 0), Vector(54.1, 16, 0)),  # 15
    Part.LineSegment(Vector(72.7, 16, 0), Vector(72.7, 12, 0)),  # 16
    Part.LineSegment(Vector(72.7, 12, 0), Vector(77.2, 12, 0)),  # 17
    Part.LineSegment(Vector(77.2, 12, 0), Vector(77.2, 16, 0)),  # 18
    Part.LineSegment(Vector(77.2, 16, 0), Vector(72.7, 16, 0)),  # 19
], False)
sketch11.addConstraint([
    Sketcher.Constraint("Coincident", 0, 2, 1, 1),
    Sketcher.Constraint("Coincident", 1, 2, 2, 1),
    Sketcher.Constraint("Coincident", 2, 2, 3, 1),
    Sketcher.Constraint("Coincident", 3, 2, 0, 1),
    Sketcher.Constraint("Coincident", 4, 2, 5, 1),
    Sketcher.Constraint("Coincident", 5, 2, 6, 1),
    Sketcher.Constraint("Coincident", 6, 2, 7, 1),
    Sketcher.Constraint("Coincident", 7, 2, 4, 1),
    Sketcher.Constraint("Coincident", 8, 2, 9, 1),
    Sketcher.Constraint("Coincident", 9, 2, 10, 1),
    Sketcher.Constraint("Coincident", 10, 2, 11, 1),
    Sketcher.Constraint("Coincident", 11, 2, 8, 1),
    Sketcher.Constraint("Coincident", 12, 2, 13, 1),
    Sketcher.Constraint("Coincident", 13, 2, 14, 1),
    Sketcher.Constraint("Coincident", 14, 2, 15, 1),
    Sketcher.Constraint("Coincident", 15, 2, 12, 1),
    Sketcher.Constraint("Coincident", 16, 2, 17, 1),
    Sketcher.Constraint("Coincident", 17, 2, 18, 1),
    Sketcher.Constraint("Coincident", 18, 2, 19, 1),
    Sketcher.Constraint("Coincident", 19, 2, 16, 1),
    Sketcher.Constraint("Vertical", 0),
    Sketcher.Constraint("Horizontal", 1),
    Sketcher.Constraint("Vertical", 2),
    Sketcher.Constraint("Horizontal", 3),
    Sketcher.Constraint("Vertical", 4),
    Sketcher.Constraint("Horizontal", 5),
    Sketcher.Constraint("Vertical", 6),
    Sketcher.Constraint("Horizontal", 7),
    Sketcher.Constraint("Vertical", 8),
    Sketcher.Constraint("Horizontal", 9),
    Sketcher.Constraint("Vertical", 10),
    Sketcher.Constraint("Horizontal", 11),
    Sketcher.Constraint("Vertical", 12),
    Sketcher.Constraint("Horizontal", 13),
    Sketcher.Constraint("Vertical", 14),
    Sketcher.Constraint("Horizontal", 15),
    Sketcher.Constraint("Vertical", 16),
    Sketcher.Constraint("Horizontal", 17),
    Sketcher.Constraint("Vertical", 18),
    Sketcher.Constraint("Horizontal", 19),
    Sketcher.Constraint("Horizontal", 1, 2, 4, 2),
    Sketcher.Constraint("Horizontal", 3, 2, 6, 2),
    Sketcher.Constraint("Horizontal", 5, 2, 8, 2),
    Sketcher.Constraint("Horizontal", 7, 2, 10, 2),
    Sketcher.Constraint("Horizontal", 9, 2, 12, 2),
    Sketcher.Constraint("Horizontal", 11, 2, 14, 2),
    Sketcher.Constraint("Horizontal", 13, 2, 16, 2),
    Sketcher.Constraint("Horizontal", 15, 2, 18, 2),
    Sketcher.Constraint("Equal", 3, 5),
    Sketcher.Constraint("Equal", 7, 9),
    Sketcher.Constraint("Equal", 11, 13),
    Sketcher.Constraint("Equal", 15, 17),
    Sketcher.Constraint("DistanceY", 0, 2, 0, 1, 4.0),
    Sketcher.Constraint("DistanceY", -1, 1, 0, 2, 12.0),
    Sketcher.Constraint("DistanceX", 13, 2, 16, 2, 14.0),
    Sketcher.Constraint("DistanceX", 0, 2, 4, 2, 18.5),
    Sketcher.Constraint("DistanceX", 4, 2, 8, 2, 18.5),
    Sketcher.Constraint("DistanceX", 8, 2, 12, 2, 18.5),
    Sketcher.Constraint("DistanceX", 1, 1, 1, 2, 4.501),
    Sketcher.Constraint("DistanceX", -1, 1, 1, 2, 3.15),
])
sketch11.setExpression("Constraints[52]", "Params.sketch11_height")
pad5 = body.newObject("PartDesign::Pad", "Pad004")
pad5.Profile = sketch11
pad5.setExpression("Length", "Params.pad5_length")

doc.recompute()
